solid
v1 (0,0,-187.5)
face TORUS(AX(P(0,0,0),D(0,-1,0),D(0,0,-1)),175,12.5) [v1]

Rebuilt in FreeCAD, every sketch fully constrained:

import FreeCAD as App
import Part
import Sketcher
from FreeCAD import Vector

doc = App.newDocument("Part")
body = doc.addObject("PartDesign::Body", "Body")

# Sketch on YZ plane
sketch1 = doc.addObject("Sketcher::SketchObject", "Sketch")
body.addObject(sketch1)
sketch1.AttachmentSupport = (doc.YZ_Plane, [""])
sketch1.MapMode = "FlatFace"
sketch1.addGeometry(Part.Circle(Vector(0, -175, 0), Vector(0, 0, 1), 12.5), False)
sketch1.addConstraint(Sketcher.Constraint("PointOnObject", 0, 3, -2))
sketch1.addConstraint(Sketcher.Constraint("Diameter", 0, 25.0))
sketch1.addConstraint(Sketcher.Constraint("DistanceY", 0, 3, -1, 1, 175.0))
revolution = doc.addObject("PartDesign::Revolution", "Revolution")
body.addObject(revolution)
revolution.Profile = sketch1
revolution.ReferenceAxis = (sketch1, ["H_Axis"])
revolution.Angle = 360

doc.recompute()
